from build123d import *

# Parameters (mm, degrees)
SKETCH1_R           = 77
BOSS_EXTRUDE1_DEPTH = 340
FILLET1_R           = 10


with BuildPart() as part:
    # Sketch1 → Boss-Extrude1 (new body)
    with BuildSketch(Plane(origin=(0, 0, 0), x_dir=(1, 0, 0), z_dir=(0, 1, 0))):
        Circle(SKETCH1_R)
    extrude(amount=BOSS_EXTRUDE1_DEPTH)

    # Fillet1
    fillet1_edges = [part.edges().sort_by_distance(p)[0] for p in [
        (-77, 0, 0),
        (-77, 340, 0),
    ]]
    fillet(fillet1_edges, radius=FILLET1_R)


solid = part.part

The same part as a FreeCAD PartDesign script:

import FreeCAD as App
import Part
import Sketcher
from FreeCAD import Vector


def edges_at(feature, points):
    """Names of the edges that pass closest to the given points."""
    edges = feature.Shape.Edges
    near = lambda p: min(range(len(edges)), key=lambda i: edges[i].distToShape(Part.Vertex(*p))[0])
    return sorted({f"Edge{near(p) + 1}" for p in points})

doc = App.newDocument("Part")
body = doc.addObject("PartDesign::Body", "Body")

sketch1 = body.newObject("Sketcher::SketchObject", "Sketch")
sketch1.AttachmentSupport = (doc.getObject("XZ_Plane"), [""])
sketch1.MapMode = "FlatFace"
sketch1.addGeometry(Part.Circle(Vector(0, 0, 0), Vector(0, 0, 1), 77), False)
sketch1.addConstraint(Sketcher.Constraint("Coincident", 0, 3, -1, 1))
sketch1.addConstraint(Sketcher.Constraint("Diameter", 0, 154.0))
pad1 = body.newObject("PartDesign::Pad", "Pad")
pad1.Profile = sketch1
pad1.Length = 340
pad1.Reversed = True
doc.recompute()

fillet = body.newObject("PartDesign::Fillet", "Fillet")
fillet.Base = (pad1, edges_at(pad1, [(-77, 0, 0), (-77, 340, 0)]))
fillet.Radius = 10

doc.recompute()
